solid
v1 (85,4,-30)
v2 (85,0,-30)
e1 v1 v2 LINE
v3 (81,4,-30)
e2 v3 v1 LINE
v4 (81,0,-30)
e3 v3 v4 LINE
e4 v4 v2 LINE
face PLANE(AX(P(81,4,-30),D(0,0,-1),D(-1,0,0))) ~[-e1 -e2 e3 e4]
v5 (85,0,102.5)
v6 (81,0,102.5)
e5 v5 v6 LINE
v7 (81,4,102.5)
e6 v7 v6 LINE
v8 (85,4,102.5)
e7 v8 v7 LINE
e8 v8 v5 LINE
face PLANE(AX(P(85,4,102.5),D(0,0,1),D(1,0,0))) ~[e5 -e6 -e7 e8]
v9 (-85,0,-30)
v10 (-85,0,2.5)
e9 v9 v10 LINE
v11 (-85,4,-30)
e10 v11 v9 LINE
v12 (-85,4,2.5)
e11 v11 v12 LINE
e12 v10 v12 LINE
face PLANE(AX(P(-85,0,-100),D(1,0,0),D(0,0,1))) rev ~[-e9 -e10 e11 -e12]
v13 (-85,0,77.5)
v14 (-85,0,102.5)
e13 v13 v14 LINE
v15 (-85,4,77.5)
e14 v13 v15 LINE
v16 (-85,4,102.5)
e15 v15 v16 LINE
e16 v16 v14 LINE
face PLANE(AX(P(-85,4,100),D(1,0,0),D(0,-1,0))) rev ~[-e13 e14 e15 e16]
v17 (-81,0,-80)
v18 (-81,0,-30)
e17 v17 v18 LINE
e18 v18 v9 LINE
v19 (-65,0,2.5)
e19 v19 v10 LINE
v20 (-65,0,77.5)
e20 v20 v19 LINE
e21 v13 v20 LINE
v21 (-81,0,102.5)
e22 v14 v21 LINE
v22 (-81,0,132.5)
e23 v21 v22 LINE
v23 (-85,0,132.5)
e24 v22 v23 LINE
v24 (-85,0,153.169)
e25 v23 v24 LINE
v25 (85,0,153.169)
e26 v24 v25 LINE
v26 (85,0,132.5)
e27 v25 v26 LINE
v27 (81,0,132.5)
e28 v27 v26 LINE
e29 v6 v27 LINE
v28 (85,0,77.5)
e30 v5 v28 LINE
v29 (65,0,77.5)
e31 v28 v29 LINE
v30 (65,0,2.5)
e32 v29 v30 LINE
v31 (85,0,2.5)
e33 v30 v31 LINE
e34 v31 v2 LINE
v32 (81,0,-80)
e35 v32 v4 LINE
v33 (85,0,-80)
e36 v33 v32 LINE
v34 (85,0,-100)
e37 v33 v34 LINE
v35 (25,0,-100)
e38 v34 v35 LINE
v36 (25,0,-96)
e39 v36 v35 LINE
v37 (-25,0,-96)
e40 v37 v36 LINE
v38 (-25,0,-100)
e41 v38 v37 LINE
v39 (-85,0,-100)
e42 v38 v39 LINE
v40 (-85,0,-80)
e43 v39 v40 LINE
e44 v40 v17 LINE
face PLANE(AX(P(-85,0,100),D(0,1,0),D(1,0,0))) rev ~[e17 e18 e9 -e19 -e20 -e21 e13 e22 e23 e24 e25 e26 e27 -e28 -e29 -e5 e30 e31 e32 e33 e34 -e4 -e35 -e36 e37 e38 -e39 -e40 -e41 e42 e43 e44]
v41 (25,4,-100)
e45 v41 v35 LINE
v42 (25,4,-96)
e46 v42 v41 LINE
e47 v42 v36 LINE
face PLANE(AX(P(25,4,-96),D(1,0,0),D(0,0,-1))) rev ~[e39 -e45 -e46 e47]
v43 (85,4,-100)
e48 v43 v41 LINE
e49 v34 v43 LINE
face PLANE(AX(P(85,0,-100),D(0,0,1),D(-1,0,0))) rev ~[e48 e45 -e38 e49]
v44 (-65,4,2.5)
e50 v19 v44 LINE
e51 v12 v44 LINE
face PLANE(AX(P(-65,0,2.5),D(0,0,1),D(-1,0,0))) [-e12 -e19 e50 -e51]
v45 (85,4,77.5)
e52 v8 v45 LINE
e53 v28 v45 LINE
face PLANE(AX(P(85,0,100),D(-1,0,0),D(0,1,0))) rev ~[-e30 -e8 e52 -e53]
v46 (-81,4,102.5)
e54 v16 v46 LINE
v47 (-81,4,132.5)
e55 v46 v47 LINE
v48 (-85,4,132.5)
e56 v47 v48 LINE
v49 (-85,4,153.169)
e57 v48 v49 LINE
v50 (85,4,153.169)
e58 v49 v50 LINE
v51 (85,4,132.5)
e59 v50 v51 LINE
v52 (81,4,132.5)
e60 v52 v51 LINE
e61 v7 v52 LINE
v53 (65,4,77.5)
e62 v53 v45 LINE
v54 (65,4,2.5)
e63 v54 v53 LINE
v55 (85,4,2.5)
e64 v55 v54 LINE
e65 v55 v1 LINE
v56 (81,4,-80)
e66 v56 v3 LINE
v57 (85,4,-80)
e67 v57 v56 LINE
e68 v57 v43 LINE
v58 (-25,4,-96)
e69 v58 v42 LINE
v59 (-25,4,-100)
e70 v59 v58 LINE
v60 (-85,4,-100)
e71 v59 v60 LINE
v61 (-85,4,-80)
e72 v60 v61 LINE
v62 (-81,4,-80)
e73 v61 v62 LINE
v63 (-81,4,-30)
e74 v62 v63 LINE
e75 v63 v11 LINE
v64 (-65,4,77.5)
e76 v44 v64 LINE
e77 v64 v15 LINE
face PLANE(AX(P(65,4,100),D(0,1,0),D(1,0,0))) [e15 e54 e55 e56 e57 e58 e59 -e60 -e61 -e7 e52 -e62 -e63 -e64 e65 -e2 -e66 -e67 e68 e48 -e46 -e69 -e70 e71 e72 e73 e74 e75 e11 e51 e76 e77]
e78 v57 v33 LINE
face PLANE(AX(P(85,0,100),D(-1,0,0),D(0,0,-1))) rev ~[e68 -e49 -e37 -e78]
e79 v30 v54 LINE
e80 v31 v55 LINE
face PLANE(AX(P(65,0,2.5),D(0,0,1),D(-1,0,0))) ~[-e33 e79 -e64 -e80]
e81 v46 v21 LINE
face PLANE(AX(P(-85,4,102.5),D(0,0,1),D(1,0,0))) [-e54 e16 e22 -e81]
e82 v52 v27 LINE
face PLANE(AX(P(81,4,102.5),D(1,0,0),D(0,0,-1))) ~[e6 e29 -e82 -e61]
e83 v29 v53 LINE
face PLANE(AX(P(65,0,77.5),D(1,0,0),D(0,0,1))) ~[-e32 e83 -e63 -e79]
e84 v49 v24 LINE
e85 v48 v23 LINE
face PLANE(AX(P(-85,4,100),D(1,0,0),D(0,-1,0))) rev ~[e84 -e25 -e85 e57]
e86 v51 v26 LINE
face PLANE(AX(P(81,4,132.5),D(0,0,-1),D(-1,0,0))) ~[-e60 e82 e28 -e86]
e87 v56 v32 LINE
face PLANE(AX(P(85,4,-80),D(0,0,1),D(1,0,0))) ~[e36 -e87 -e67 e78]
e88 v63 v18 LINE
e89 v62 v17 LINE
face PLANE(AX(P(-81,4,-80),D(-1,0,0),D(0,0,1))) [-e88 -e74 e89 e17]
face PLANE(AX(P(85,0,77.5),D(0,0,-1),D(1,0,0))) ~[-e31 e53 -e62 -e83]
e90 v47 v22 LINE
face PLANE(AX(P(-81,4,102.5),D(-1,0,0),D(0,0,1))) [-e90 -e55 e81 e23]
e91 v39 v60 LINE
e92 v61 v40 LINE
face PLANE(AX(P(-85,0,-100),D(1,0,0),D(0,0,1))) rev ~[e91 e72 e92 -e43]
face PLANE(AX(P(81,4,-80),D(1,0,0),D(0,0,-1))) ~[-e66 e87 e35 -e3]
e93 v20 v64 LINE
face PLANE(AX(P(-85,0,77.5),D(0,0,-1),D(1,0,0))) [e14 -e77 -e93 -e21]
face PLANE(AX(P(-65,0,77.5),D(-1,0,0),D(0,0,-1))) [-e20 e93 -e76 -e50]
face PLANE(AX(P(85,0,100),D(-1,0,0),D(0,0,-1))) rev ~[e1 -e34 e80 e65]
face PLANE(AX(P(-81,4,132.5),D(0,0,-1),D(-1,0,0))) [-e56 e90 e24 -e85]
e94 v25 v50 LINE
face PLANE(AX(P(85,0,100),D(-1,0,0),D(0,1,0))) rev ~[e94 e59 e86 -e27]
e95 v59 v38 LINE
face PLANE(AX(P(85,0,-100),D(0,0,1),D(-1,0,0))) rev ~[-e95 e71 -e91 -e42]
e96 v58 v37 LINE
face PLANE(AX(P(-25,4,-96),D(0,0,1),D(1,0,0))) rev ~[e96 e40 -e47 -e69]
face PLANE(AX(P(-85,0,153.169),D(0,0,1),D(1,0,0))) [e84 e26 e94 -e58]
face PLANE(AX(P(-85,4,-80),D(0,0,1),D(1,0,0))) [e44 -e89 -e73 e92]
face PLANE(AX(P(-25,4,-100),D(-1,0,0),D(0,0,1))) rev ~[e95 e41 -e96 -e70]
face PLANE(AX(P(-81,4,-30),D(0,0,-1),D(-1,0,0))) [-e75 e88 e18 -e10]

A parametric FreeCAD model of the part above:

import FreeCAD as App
import Part
import Sketcher
from FreeCAD import Vector


def add_polygon(sketch, points):
    """Adds a closed chain of lines whose ends are joined by coincident constraints."""
    first, n = sketch.GeometryCount, len(points)
    for a, b in zip(points, points[1:] + points[:1]):
        sketch.addGeometry(Part.LineSegment(App.Vector(*a, 0), App.Vector(*b, 0)), False)
    for i in range(n):
        sketch.addConstraint(Sketcher.Constraint("Coincident", first + i, 2, first + (i + 1) % n, 1))

doc = App.newDocument("Part")
body = doc.addObject("PartDesign::Body", "Body")

# Sketch on XZ plane
sketch1 = body.newObject("Sketcher::SketchObject", "Sketch")
sketch1.AttachmentSupport = (doc.getObject("XZ_Plane"), [""])
sketch1.MapMode = "FlatFace"
add_polygon(sketch1, [(-85, -100), (-85, 100), (85, 100), (85, -100)])  # lines 0-3
sketch1.addConstraint([
    Sketcher.Constraint("Vertical", 0),
    Sketcher.Constraint("Horizontal", 1),
    Sketcher.Constraint("Vertical", 2),
    Sketcher.Constraint("Horizontal", 3),
    Sketcher.Constraint("Symmetric", 0, 2, 2, 2, -1, 1),
    Sketcher.Constraint("DistanceX", 1, 1, 1, 2, 170.0),
    Sketcher.Constraint("DistanceY", 0, 1, 0, 2, 200.0),
])
pad1 = body.newObject("PartDesign::Pad", "Pad")
pad1.Profile = sketch1
pad1.Length = 4
pad1.Reversed = True

# Sketch on XZ plane
sketch2 = body.newObject("Sketcher::SketchObject", "Sketch001")
sketch2.AttachmentSupport = (doc.getObject("XZ_Plane"), [""])
sketch2.MapMode = "FlatFace"
add_polygon(sketch2, [(-85, 78), (-85, 2), (-65, 2), (-65, 78)])  # lines 0-3
sketch2.addConstraint([
    Sketcher.Constraint("Vertical", 0),
    Sketcher.Constraint("Horizontal", 1),
    Sketcher.Constraint("Vertical", 2),
    Sketcher.Constraint("Horizontal", 3),
    Sketcher.Constraint("DistanceX", 1, 1, 1, 2, 20.0),
    Sketcher.Constraint("DistanceY", 0, 2, 0, 1, 75.0),
    Sketcher.Constraint("DistanceX", 0, 2, -1, 1, 85.0),
    Sketcher.Constraint("DistanceY", -1, 1, 0, 2, 2.5),
])
pocket1 = body.newObject("PartDesign::Pocket", "Pocket")
pocket1.Profile = sketch2
pocket1.Type = "ThroughAll"
doc.recompute()

mirrored = body.newObject("PartDesign::Mirrored", "Mirrored")
mirrored.Originals = [pocket1]
mirrored.MirrorPlane = (doc.getObject("YZ_Plane"), [""])
body.Tip = mirrored

# Sketch on XZ plane
sketch3 = body.newObject("Sketcher::SketchObject", "Sketch002")
sketch3.AttachmentSupport = (doc.getObject("XZ_Plane"), [""])
sketch3.MapMode = "FlatFace"
sketch3.AttachmentOffset = App.Placement(Vector(0, 0, -4), App.Rotation())
add_polygon(sketch3, [(25, -96), (25, -100), (-25, -100), (-25, -96)])  # lines 0-3
sketch3.addConstraint([
    Sketcher.Constraint("Vertical", 0),
    Sketcher.Constraint("Horizontal", 1),
    Sketcher.Constraint("Vertical", 2),
    Sketcher.Constraint("Horizontal", 3),
    Sketcher.Constraint("DistanceX", 1, 2, 1, 1, 50.0),
    Sketcher.Constraint("DistanceY", 0, 2, 0, 1, 4.0),
    Sketcher.Constraint("DistanceY", 2, 2, -1, 1, 96.0),
    Sketcher.Constraint("DistanceX", -1, 1, 0, 2, 25.0),
])
pocket2 = body.newObject("PartDesign::Pocket", "Pocket001")
pocket2.Profile = sketch3
pocket2.Type = "ThroughAll"
pocket2.Reversed = True

# Sketch on XZ plane
sketch4 = body.newObject("Sketcher::SketchObject", "Sketch003")
sketch4.AttachmentSupport = (doc.getObject("XZ_Plane"), [""])
sketch4.MapMode = "FlatFace"
sketch4.AttachmentOffset = App.Placement(Vector(0, 0, -4), App.Rotation())
add_polygon(sketch4, [(-81, -80), (-85, -80), (-85, -30), (-81, -30)])  # lines 0-3
sketch4.addConstraint([
    Sketcher.Constraint("Horizontal", 0),
    Sketcher.Constraint("Vertical", 1),
    Sketcher.Constraint("Horizontal", 2),
    Sketcher.Constraint("Vertical", 3),
    Sketcher.Constraint("DistanceX", 0, 2, 0, 1, 4.0),
    Sketcher.Constraint("DistanceY", 1, 1, 1, 2, 50.0),
    Sketcher.Constraint("DistanceX", 0, 2, -1, 1, 85.0),
    Sketcher.Constraint("DistanceY", 0, 2, -1, 1, 80.0),
])
pocket3 = body.newObject("PartDesign::Pocket", "Pocket002")
pocket3.Profile = sketch4
pocket3.Type = "ThroughAll"
pocket3.Reversed = True
doc.recompute()

mirrored2 = body.newObject("PartDesign::Mirrored", "Mirrored001")
mirrored2.Originals = [pocket3]
mirrored2.MirrorPlane = (doc.getObject("YZ_Plane"), [""])
body.Tip = mirrored2

# Sketch on XY plane
sketch5 = body.newObject("Sketcher::SketchObject", "Sketch004")
sketch5.AttachmentSupport = (doc.getObject("XY_Plane"), [""])
sketch5.MapMode = "FlatFace"
sketch5.AttachmentOffset = App.Placement(Vector(0, 0, 100), App.Rotation())
add_polygon(sketch5, [(85, 4), (-85, 4), (-85, 0), (85, 0)])  # lines 0-3
sketch5.addConstraint([
    Sketcher.Constraint("Horizontal", 0),
    Sketcher.Constraint("Vertical", 1),
    Sketcher.Constraint("Horizontal", 2),
    Sketcher.Constraint("Vertical", 3),
    Sketcher.Constraint("Symmetric", 1, 2, 2, 2, -1, 1),
    Sketcher.Constraint("DistanceX", 0, 2, 0, 1, 170.0),
    Sketcher.Constraint("DistanceY", 1, 2, 1, 1, 4.0),
])
pad2 = body.newObject("PartDesign::Pad", "Pad001")
pad2.Profile = sketch5
pad2.Length = 53.169

# Sketch on XZ plane
sketch6 = body.newObject("Sketcher::SketchObject", "Sketch005")
sketch6.AttachmentSupport = (doc.getObject("XZ_Plane"), [""])
sketch6.MapMode = "FlatFace"
sketch6.AttachmentOffset = App.Placement(Vector(0, 0, -4), App.Rotation())
add_polygon(sketch6, [(-81, 102.5), (-85, 102.5), (-85, 132.5), (-81, 132.5)])  # lines 0-3
sketch6.addConstraint([
    Sketcher.Constraint("Horizontal", 0),
    Sketcher.Constraint("Vertical", 1),
    Sketcher.Constraint("Horizontal", 2),
    Sketcher.Constraint("Vertical", 3),
    Sketcher.Constraint("DistanceX", 0, 2, 0, 1, 4.0),
    Sketcher.Constraint("DistanceY", 1, 1, 1, 2, 30.0),
    Sketcher.Constraint("DistanceX", 0, 2, -1, 1, 85.0),
    Sketcher.Constraint("DistanceY", -1, 1, 0, 2, 102.5),
])
pocket4 = body.newObject("PartDesign::Pocket", "Pocket003")
pocket4.Profile = sketch6
pocket4.Length = 10
pocket4.Reversed = True
doc.recompute()

mirrored3 = body.newObject("PartDesign::Mirrored", "Mirrored002")
mirrored3.Originals = [pocket4]
mirrored3.MirrorPlane = (doc.getObject("YZ_Plane"), [""])
body.Tip = mirrored3

doc.recompute()
